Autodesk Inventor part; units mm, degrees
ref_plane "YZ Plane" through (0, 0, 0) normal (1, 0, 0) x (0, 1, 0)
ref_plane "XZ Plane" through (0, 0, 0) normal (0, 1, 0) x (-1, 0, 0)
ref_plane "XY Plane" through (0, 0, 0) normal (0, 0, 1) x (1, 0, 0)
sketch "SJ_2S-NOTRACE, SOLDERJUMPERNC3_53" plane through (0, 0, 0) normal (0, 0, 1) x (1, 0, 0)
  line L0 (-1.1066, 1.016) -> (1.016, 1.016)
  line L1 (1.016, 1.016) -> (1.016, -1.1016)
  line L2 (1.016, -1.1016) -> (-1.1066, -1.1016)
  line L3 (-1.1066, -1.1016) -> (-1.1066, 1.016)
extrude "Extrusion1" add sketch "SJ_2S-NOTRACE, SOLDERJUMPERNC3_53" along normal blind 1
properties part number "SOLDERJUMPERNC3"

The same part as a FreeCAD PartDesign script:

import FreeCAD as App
import Part
import Sketcher
from FreeCAD import Vector
Q = App.Units.Quantity

doc = App.newDocument("Part")
body = doc.addObject("PartDesign::Body", "Body")

sketch1 = doc.addObject("Sketcher::SketchObject", "Sketch")
body.addObject(sketch1)
sketch1.AttachmentSupport = (doc.XY_Plane, [""])
sketch1.MapMode = "FlatFace"
sketch1.addGeometry([
    Part.LineSegment(Vector(1, 1, 0), Vector(-1.1, 1, 0)),
    Part.LineSegment(Vector(-1.1, 1, 0), Vector(-1.1, -1.1, 0)),
    Part.LineSegment(Vector(-1.1, -1.1, 0), Vector(1, -1.1, 0)),
    Part.LineSegment(Vector(1, -1.1, 0), Vector(1, 1, 0)),
], False)
sketch1.addConstraint([
    Sketcher.Constraint("Coincident", 0, 2, 1, 1),
    Sketcher.Constraint("Coincident", 1, 2, 2, 1),
    Sketcher.Constraint("Coincident", 2, 2, 3, 1),
    Sketcher.Constraint("Coincident", 3, 2, 0, 1),
    Sketcher.Constraint("Horizontal", 0),
    Sketcher.Constraint("Vertical", 1),
    Sketcher.Constraint("Horizontal", 2),
    Sketcher.Constraint("Vertical", 3),
    Sketcher.Constraint("DistanceX", 0, 2, 0, 1, Q("2.1226 mm")),
    Sketcher.Constraint("DistanceY", 1, 2, 1, 1, Q("2.1176 mm")),
    Sketcher.Constraint("DistanceY", -1, 1, 0, 2, Q("1.016 mm")),
    Sketcher.Constraint("DistanceX", -1, 1, 2, 2, Q("1.016 mm")),
])
pad1 = doc.addObject("PartDesign::Pad", "Pad")
body.addObject(pad1)
pad1.Profile = sketch1
pad1.Length = 1

doc.recompute()
